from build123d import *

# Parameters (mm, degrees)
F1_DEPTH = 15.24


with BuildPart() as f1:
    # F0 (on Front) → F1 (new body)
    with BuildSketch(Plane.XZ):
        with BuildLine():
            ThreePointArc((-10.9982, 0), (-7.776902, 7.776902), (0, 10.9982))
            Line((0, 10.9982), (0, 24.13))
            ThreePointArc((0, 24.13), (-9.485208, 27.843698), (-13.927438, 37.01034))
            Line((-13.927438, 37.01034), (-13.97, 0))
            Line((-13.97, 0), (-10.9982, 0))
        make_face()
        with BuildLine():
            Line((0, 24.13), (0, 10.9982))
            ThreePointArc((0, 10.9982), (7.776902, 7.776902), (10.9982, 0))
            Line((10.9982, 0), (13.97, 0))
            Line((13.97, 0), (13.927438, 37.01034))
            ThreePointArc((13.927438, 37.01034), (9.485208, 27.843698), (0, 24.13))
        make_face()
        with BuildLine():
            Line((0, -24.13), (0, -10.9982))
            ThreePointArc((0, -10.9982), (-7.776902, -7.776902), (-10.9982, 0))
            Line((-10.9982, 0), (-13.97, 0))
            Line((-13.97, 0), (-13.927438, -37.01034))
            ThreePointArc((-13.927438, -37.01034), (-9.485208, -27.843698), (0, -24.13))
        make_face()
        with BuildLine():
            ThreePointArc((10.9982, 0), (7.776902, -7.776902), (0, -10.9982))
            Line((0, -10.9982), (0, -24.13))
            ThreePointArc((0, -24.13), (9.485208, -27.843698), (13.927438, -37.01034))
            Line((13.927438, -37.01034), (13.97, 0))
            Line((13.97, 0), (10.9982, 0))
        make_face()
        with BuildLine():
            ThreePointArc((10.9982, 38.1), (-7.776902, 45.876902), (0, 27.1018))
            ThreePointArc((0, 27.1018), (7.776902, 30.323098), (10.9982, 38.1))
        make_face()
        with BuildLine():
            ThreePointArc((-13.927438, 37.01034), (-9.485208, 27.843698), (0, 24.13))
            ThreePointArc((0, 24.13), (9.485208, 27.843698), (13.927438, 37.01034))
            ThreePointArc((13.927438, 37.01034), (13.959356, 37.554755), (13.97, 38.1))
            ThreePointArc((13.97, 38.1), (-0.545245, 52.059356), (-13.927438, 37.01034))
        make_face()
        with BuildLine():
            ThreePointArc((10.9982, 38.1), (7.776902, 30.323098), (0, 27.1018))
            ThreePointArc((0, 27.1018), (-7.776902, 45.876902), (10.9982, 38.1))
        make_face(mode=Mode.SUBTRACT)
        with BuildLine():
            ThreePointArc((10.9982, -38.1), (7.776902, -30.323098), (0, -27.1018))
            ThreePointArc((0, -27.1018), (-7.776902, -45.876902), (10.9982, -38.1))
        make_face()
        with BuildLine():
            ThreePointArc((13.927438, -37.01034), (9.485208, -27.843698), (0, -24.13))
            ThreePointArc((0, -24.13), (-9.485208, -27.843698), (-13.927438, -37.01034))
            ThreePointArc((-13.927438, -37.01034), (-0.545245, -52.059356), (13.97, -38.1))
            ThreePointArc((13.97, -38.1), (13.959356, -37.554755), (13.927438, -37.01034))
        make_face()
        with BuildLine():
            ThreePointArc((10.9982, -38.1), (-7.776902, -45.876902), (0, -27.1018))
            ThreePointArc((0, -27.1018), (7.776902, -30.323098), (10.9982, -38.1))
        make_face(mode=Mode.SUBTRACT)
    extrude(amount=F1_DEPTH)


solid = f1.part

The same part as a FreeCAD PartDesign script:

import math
import FreeCAD as App
import Part
import Sketcher
from FreeCAD import Vector
Q = App.Units.Quantity

doc = App.newDocument("Part")
body = doc.addObject("PartDesign::Body", "Body")

# Sketch on XZ plane
sketch1 = body.newObject("Sketcher::SketchObject", "Sketch")
sketch1.AttachmentSupport = (doc.getObject("XZ_Plane"), [""])
sketch1.MapMode = "FlatFace"
sketch1.addGeometry([
    Part.LineSegment(Vector(14, 0, 0), Vector(13.9, 37, 0)),  # 0
    Part.ArcOfCircle(Part.Circle(Vector(0, 38.1, 0), Vector(0, 0, 1), 14), math.radians(-4.47), math.radians(0)),  # 1
    Part.ArcOfCircle(Part.Circle(Vector(0, 38.1, 0), Vector(0, 0, 1), 14), math.radians(0), math.radians(184)),  # 2
    Part.LineSegment(Vector(-13.9, 37, 0), Vector(-14, 0, 0)),  # 3
    Part.LineSegment(Vector(-14, 0, 0), Vector(-13.9, -37, 0)),  # 4
    Part.ArcOfCircle(Part.Circle(Vector(0, -38.1, 0), Vector(0, 0, 1), 14), math.radians(176), math.radians(360)),  # 5
    Part.ArcOfCircle(Part.Circle(Vector(0, -38.1, 0), Vector(0, 0, 1), 14), math.radians(0), math.radians(4.47)),  # 6
    Part.LineSegment(Vector(13.9, -37, 0), Vector(14, 0, 0)),  # 7
    Part.ArcOfCircle(Part.Circle(Vector(0, -38.1, 0), Vector(0, 0, 1), 11), math.radians(0), math.radians(90)),  # 8
    Part.ArcOfCircle(Part.Circle(Vector(0, -38.1, 0), Vector(0, 0, 1), 11), math.radians(90), math.radians(360)),  # 9
    Part.ArcOfCircle(Part.Circle(Vector(0, 0, 0), Vector(0, 0, 1), 11), math.radians(90), math.radians(180)),  # 10
    Part.ArcOfCircle(Part.Circle(Vector(0, 0, 0), Vector(0, 0, 1), 11), math.radians(0), math.radians(90)),  # 11
    Part.ArcOfCircle(Part.Circle(Vector(0, 0, 0), Vector(0, 0, 1), 11), math.radians(-90), math.radians(0)),  # 12
    Part.ArcOfCircle(Part.Circle(Vector(0, 0, 0), Vector(0, 0, 1), 11), math.radians(180), math.radians(270)),  # 13
    Part.ArcOfCircle(Part.Circle(Vector(0, 38.1, 0), Vector(0, 0, 1), 11), math.radians(0), math.radians(270)),  # 14
    Part.ArcOfCircle(Part.Circle(Vector(0, 38.1, 0), Vector(0, 0, 1), 11), math.radians(-90), math.radians(0)),  # 15
], False)
sketch1.addConstraint([
    Sketcher.Constraint("Coincident", 0, 2, 1, 1),
    Sketcher.Constraint("Coincident", 1, 2, 2, 1),
    Sketcher.Constraint("Coincident", 2, 2, 3, 1),
    Sketcher.Constraint("Coincident", 3, 2, 4, 1),
    Sketcher.Constraint("Coincident", 4, 2, 5, 1),
    Sketcher.Constraint("Coincident", 5, 2, 6, 1),
    Sketcher.Constraint("Coincident", 6, 2, 7, 1),
    Sketcher.Constraint("Coincident", 7, 2, 0, 1),
    Sketcher.Constraint("Tangent", 8, 1, 9, 2),
    Sketcher.Constraint("Coincident", 9, 1, 8, 2),
    Sketcher.Constraint("Tangent", 10, 1, 11, 2),
    Sketcher.Constraint("Tangent", 11, 1, 12, 2),
    Sketcher.Constraint("Tangent", 12, 1, 13, 2),
    Sketcher.Constraint("Tangent", 13, 1, 10, 2),
    Sketcher.Constraint("Tangent", 14, 1, 15, 2),
    Sketcher.Constraint("Coincident", 15, 1, 14, 2),
    Sketcher.Constraint("Coincident", 10, 3, -1, 1),
    Sketcher.Constraint("Coincident", 8, 3, 5, 3),
    Sketcher.Constraint("Coincident", 14, 3, 2, 3),
    Sketcher.Constraint("Equal", 2, 5),
    Sketcher.Constraint("Equal", 1, 6),
    Sketcher.Constraint("Equal", 9, 10),
    Sketcher.Constraint("Equal", 10, 11),
    Sketcher.Constraint("Equal", 13, 14),
    Sketcher.Constraint("Symmetric", 2, 3, 5, 3, -1, 1),
    Sketcher.Constraint("Symmetric", 0, 2, 4, 2, -1, 1),
    Sketcher.Constraint("Symmetric", 2, 2, 6, 2, -1, 1),
    Sketcher.Constraint("Symmetric", 3, 2, 7, 2, -1, 1),
    Sketcher.Constraint("Symmetric", 0, 2, 2, 2, -2),
    Sketcher.Constraint("PointOnObject", 3, 2, -1),
    Sketcher.Constraint("PointOnObject", 9, 1, -2),
    Sketcher.Constraint("PointOnObject", 10, 1, -2),
    Sketcher.Constraint("PointOnObject", 11, 1, -1),
    Sketcher.Constraint("PointOnObject", 12, 1, -2),
    Sketcher.Constraint("PointOnObject", 13, 1, -1),
    Sketcher.Constraint("PointOnObject", 15, 1, -2),
    Sketcher.Constraint("Horizontal", 15, 3, 1, 2),
    Sketcher.Constraint("Horizontal", 9, 3, 5, 2),
    Sketcher.Constraint("Horizontal", 5, 2, 8, 1),
    Sketcher.Constraint("Horizontal", 1, 2, 14, 1),
    Sketcher.Constraint("Vertical", 5, 2, 7, 2),
    Sketcher.Constraint("Radius", 2, Q("0.55 in")),
    Sketcher.Constraint("Radius", 8, Q("0.433 in")),
    Sketcher.Constraint("DistanceY", 5, 3, 2, 3, Q("3 in")),
    Sketcher.Constraint("DistanceY", -1, 1, 0, 2, Q("1.4571 in")),
    Sketcher.Constraint("Radius", 1, 13.969157),
])
pad1 = body.newObject("PartDesign::Pad", "Pad")
pad1.Profile = sketch1
pad1.Length = Q("0.6 in")

doc.recompute()
